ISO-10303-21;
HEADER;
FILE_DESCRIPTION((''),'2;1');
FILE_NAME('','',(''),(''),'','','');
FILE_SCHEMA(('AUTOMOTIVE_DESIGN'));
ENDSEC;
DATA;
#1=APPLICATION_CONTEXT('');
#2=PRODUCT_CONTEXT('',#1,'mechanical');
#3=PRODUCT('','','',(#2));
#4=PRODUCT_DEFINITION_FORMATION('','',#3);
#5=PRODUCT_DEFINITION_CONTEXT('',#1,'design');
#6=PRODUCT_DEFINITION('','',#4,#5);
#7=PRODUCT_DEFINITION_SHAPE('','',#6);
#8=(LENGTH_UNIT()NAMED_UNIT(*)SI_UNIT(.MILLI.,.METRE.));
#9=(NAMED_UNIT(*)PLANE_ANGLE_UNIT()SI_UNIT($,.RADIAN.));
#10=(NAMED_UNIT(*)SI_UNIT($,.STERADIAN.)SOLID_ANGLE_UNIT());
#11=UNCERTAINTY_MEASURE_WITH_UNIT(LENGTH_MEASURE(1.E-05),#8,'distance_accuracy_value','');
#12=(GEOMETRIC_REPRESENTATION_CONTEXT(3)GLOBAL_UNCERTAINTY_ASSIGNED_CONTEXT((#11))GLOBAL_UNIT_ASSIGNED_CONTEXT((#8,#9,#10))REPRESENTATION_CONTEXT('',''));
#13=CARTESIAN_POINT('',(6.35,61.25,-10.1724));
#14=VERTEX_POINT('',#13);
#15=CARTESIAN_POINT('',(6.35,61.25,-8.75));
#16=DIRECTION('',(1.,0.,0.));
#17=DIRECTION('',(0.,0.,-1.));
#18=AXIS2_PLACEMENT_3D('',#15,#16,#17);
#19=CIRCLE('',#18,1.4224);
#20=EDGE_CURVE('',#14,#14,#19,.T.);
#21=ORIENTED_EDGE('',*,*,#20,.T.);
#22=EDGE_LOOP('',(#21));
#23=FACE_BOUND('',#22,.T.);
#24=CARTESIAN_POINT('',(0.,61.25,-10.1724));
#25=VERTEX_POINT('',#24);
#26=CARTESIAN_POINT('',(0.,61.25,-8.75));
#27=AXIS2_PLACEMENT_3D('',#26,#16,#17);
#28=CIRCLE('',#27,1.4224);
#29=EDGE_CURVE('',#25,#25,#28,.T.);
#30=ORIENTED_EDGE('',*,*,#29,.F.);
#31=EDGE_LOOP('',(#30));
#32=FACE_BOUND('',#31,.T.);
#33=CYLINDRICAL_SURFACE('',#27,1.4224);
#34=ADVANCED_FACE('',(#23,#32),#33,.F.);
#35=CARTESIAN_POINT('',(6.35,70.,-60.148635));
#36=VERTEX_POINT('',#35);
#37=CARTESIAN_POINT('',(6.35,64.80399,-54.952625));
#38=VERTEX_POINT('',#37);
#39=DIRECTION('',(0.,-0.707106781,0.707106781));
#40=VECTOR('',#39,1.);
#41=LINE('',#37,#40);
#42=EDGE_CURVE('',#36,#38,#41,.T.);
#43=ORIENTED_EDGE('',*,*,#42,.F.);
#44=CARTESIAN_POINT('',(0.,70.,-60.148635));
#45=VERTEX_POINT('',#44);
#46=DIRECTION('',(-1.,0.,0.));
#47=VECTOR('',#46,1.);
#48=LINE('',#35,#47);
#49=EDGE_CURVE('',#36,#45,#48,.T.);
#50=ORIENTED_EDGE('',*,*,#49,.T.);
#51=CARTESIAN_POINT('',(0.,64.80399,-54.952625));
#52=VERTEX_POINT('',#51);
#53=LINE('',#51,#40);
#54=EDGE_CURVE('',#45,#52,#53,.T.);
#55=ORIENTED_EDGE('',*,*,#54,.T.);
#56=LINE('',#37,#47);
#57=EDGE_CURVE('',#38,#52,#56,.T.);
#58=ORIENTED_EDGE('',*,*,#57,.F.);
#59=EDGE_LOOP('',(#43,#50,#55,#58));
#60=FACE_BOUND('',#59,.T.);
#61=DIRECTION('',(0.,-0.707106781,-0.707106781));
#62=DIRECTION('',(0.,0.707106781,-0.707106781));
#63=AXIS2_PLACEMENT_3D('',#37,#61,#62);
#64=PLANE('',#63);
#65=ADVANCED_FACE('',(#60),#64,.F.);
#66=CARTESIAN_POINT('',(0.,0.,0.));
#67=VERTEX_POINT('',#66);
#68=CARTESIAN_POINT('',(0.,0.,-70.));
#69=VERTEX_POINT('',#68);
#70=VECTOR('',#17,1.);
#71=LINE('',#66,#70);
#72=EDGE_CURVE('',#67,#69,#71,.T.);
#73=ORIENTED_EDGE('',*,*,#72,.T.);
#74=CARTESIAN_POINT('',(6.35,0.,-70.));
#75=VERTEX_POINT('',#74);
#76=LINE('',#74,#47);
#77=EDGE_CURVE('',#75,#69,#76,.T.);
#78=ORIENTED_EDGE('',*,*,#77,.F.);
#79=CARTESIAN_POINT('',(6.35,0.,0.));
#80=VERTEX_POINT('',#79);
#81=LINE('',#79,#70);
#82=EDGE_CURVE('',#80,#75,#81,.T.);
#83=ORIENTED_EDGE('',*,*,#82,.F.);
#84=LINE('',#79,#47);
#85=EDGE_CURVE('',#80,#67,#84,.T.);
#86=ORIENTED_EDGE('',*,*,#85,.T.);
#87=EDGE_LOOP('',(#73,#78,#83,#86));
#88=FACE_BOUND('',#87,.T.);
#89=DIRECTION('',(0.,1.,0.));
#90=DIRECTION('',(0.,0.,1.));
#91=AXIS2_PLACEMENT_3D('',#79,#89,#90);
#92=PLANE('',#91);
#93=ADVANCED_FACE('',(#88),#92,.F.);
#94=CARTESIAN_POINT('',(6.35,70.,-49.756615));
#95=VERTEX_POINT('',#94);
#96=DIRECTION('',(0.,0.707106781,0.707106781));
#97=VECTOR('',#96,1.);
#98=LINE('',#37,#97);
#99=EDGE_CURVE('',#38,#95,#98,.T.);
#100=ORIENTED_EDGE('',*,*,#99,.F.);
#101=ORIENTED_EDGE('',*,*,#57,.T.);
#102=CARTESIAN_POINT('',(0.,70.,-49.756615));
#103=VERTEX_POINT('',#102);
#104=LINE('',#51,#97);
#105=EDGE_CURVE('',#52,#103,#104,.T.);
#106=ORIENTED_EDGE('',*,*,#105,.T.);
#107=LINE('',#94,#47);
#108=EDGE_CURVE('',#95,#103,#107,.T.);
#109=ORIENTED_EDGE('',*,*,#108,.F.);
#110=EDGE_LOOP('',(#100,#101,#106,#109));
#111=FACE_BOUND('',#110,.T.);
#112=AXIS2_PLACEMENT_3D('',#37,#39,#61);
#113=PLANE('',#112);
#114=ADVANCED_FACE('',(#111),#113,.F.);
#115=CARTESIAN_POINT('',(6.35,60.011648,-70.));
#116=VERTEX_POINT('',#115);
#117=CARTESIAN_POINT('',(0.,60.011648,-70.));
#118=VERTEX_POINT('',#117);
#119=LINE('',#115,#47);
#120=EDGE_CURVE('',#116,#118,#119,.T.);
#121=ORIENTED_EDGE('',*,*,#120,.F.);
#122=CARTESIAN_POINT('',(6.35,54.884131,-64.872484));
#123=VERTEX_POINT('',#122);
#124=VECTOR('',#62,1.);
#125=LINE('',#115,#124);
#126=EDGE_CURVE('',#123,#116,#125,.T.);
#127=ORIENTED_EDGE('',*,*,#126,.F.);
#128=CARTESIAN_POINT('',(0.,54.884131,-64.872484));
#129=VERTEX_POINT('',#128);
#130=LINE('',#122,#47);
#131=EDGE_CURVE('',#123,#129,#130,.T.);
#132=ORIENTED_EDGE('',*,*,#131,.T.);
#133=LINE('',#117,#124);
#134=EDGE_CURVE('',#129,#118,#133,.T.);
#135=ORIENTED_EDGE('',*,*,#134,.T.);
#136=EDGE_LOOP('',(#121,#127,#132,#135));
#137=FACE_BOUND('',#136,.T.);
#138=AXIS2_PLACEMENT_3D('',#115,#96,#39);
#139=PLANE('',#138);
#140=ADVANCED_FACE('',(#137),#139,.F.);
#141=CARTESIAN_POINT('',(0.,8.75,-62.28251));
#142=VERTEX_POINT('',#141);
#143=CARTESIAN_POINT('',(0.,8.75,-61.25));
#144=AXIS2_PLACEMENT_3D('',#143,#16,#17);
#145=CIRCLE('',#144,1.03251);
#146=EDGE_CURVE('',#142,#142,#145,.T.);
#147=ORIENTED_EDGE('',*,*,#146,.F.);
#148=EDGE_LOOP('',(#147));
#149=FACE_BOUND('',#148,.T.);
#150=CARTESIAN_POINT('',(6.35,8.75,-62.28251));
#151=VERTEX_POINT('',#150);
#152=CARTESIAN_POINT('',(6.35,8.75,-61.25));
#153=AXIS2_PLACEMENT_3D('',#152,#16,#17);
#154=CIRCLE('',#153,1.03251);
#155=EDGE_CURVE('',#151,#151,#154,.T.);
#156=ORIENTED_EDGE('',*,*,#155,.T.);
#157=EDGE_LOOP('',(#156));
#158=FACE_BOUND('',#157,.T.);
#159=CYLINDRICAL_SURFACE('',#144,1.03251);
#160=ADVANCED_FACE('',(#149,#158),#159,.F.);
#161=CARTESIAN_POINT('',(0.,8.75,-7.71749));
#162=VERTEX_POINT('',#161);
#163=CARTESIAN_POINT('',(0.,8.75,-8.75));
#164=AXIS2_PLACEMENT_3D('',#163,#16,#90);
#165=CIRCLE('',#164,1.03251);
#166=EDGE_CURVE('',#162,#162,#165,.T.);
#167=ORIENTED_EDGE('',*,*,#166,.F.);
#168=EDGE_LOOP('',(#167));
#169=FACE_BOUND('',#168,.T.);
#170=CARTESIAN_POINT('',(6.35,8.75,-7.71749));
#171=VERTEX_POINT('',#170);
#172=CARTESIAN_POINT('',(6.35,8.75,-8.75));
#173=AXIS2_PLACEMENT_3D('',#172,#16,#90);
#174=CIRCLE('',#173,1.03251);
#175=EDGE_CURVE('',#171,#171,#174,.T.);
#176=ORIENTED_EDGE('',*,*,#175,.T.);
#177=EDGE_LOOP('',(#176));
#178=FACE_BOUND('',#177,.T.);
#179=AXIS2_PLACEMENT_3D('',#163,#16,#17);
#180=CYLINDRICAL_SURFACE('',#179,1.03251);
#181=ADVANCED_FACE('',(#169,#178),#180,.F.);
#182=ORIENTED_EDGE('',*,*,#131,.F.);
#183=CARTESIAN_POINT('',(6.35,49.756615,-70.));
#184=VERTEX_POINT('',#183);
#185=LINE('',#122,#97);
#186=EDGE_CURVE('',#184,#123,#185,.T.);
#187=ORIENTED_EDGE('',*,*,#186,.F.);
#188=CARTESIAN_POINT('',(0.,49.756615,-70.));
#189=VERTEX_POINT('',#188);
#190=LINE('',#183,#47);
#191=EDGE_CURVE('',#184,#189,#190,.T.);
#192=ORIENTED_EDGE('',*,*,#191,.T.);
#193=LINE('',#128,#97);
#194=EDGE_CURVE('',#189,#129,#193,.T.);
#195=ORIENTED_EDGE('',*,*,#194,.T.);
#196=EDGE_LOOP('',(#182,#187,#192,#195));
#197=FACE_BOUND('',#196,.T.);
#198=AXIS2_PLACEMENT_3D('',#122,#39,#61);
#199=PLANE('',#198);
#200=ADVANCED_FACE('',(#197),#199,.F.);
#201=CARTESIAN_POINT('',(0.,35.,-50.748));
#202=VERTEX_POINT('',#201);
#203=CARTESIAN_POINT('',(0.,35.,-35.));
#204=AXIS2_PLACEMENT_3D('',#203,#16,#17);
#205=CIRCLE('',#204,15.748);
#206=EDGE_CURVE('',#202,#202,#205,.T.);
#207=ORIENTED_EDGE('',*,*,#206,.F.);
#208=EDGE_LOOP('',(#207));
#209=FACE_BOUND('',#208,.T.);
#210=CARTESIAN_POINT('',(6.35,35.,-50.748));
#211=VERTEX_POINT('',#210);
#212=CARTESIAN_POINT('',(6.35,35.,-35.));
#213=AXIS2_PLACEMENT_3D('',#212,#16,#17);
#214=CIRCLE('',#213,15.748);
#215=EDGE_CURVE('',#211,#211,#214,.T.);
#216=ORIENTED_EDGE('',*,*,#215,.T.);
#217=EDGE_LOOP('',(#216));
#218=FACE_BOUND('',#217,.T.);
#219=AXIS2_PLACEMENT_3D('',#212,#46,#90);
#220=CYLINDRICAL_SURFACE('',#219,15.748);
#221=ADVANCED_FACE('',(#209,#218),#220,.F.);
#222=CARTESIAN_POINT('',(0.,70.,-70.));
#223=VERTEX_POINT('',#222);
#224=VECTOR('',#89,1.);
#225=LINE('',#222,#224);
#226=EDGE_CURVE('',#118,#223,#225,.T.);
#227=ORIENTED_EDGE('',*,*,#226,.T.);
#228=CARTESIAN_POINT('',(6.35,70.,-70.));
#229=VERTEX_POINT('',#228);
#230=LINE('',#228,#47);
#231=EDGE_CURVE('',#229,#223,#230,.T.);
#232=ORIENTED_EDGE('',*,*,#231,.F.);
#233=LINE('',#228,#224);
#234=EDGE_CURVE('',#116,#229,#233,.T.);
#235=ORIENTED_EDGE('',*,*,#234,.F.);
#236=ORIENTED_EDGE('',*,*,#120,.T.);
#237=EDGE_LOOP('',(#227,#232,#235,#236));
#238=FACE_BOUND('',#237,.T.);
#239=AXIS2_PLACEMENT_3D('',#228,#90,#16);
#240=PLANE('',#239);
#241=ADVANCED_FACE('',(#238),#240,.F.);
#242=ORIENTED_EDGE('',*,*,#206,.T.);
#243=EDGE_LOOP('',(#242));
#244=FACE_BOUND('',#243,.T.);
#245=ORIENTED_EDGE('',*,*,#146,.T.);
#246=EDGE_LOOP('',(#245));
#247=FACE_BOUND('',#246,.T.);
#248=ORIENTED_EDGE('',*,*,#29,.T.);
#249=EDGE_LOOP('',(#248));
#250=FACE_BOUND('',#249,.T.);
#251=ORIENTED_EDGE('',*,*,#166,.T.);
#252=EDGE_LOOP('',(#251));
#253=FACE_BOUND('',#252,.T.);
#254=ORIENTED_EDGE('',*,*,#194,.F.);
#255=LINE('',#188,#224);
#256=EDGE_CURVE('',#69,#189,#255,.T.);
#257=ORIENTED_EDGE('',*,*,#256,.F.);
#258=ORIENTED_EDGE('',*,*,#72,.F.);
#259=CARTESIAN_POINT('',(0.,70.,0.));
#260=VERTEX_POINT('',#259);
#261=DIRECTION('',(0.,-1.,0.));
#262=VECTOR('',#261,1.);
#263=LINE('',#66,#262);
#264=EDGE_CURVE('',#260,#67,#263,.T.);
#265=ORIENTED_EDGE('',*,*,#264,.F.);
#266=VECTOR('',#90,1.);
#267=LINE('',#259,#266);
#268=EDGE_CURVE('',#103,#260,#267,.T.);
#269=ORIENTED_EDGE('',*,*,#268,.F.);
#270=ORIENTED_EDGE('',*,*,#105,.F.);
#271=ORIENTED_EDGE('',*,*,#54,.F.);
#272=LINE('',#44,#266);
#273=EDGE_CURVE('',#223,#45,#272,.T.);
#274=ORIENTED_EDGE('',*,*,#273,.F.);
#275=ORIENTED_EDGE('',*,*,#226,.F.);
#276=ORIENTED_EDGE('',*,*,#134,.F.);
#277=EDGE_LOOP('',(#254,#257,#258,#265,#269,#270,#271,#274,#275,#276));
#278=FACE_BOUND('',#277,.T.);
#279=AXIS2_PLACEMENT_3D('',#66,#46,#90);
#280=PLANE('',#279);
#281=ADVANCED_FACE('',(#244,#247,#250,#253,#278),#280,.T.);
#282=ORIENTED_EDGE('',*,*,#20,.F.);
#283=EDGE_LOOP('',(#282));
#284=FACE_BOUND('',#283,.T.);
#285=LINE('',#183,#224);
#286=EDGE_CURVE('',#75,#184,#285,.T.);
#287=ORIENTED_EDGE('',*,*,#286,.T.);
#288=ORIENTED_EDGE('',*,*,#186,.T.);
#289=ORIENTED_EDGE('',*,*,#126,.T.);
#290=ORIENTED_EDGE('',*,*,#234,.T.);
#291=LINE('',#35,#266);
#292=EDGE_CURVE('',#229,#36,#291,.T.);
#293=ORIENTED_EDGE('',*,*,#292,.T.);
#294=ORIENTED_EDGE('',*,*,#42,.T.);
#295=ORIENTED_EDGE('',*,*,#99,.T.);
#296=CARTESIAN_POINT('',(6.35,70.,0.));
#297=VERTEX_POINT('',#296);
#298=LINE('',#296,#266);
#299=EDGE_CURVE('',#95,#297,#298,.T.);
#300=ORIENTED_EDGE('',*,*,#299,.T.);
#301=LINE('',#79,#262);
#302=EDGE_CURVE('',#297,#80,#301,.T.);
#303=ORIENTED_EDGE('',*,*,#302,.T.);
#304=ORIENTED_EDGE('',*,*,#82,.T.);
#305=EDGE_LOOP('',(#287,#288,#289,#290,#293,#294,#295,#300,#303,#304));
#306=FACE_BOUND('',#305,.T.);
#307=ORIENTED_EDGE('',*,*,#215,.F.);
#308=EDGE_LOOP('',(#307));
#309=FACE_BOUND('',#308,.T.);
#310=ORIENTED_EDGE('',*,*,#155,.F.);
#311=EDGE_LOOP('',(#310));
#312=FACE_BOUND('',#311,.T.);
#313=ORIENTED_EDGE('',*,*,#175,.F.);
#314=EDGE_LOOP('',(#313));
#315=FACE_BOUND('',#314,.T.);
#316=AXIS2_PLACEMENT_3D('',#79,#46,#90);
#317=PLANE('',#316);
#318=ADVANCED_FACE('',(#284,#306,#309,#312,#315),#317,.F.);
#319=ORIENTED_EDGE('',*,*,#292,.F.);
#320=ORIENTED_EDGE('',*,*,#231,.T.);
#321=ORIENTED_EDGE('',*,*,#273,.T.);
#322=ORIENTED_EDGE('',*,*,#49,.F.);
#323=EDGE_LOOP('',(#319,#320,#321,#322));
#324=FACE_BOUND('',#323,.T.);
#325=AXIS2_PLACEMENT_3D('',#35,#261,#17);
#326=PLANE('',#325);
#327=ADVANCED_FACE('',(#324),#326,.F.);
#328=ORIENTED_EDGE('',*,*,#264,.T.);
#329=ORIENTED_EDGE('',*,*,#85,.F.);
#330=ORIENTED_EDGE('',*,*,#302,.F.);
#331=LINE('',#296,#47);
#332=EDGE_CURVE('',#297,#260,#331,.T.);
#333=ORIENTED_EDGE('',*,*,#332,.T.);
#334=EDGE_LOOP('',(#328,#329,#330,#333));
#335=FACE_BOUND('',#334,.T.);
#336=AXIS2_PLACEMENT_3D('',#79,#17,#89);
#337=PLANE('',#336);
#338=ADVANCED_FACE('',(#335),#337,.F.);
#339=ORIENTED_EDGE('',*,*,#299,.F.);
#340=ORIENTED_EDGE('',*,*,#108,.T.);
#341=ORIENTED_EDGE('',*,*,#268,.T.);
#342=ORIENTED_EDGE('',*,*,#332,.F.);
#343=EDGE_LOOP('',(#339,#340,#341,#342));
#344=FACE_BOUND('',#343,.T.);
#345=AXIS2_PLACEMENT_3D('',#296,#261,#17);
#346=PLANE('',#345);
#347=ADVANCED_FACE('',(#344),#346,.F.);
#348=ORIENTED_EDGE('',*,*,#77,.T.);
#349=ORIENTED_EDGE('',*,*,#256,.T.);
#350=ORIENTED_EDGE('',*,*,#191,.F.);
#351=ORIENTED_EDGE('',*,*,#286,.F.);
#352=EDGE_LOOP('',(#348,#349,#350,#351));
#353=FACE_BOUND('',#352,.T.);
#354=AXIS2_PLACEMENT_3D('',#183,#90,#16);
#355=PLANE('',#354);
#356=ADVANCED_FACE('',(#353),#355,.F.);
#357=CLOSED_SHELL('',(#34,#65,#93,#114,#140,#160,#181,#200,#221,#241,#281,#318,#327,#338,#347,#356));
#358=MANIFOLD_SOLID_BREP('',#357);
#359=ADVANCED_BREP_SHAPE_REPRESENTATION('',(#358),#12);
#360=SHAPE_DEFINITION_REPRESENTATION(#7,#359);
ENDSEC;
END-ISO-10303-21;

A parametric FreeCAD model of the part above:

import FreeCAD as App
import Part
import Sketcher

V = App.Vector
Q = App.Units.Quantity


def add_polygon(sketch, points):
    """Adds a closed chain of lines whose ends are joined by coincident constraints."""
    first, n = sketch.GeometryCount, len(points)
    for a, b in zip(points, points[1:] + points[:1]):
        sketch.addGeometry(Part.LineSegment(App.Vector(*a, 0), App.Vector(*b, 0)), False)
    for i in range(n):
        sketch.addConstraint(Sketcher.Constraint("Coincident", first + i, 2, first + (i + 1) % n, 1))

doc = App.newDocument("Part")
body = doc.addObject("PartDesign::Body", "Body")

# Sketch on YZ plane
sketch1 = doc.addObject("Sketcher::SketchObject", "Sketch")
body.addObject(sketch1)
sketch1.AttachmentSupport = (doc.YZ_Plane, [""])
sketch1.MapMode = "FlatFace"
add_polygon(sketch1, [(0, 0), (0, -70), (49.756615, -70), (54.884131, -64.872484), (60.011648, -70), (70, -70), (70, -60.148635), (64.80399, -54.952625), (70, -49.756615), (70, 0)])  # lines 0-9
sketch1.addGeometry(Part.Circle(V(35, -35, 0), V(0, 0, 1), 15.748), False)  # 10
sketch1.addConstraint([
    Sketcher.Constraint("Vertical", 0),
    Sketcher.Constraint("Horizontal", 1),
    Sketcher.Constraint("Horizontal", 4),
    Sketcher.Constraint("Vertical", 5),
    Sketcher.Constraint("Vertical", 8),
    Sketcher.Constraint("Horizontal", 9),
    Sketcher.Constraint("Coincident", 9, 2, -1, 1),
    Sketcher.Constraint("Perpendicular", 2, 3),
    Sketcher.Constraint("Parallel", 3, 6),
    Sketcher.Constraint("Perpendicular", 6, 7),
    Sketcher.Constraint("Horizontal", 1, 2, 3, 2),
    Sketcher.Constraint("Vertical", 5, 2, 7, 2),
    Sketcher.Constraint("Equal", 9, 0),
    Sketcher.Constraint("Equal", 1, 8),
    Sketcher.Constraint("Equal", 2, 3),
    Sketcher.Constraint("Diameter", 10, Q("1.24 in")),
    Sketcher.Constraint("DistanceX", 9, 2, 9, 1, 70.0),
    Sketcher.Constraint("DistanceX", -1, 1, 10, 3, 35.0),
    Sketcher.Constraint("DistanceY", 10, 3, -1, 1, 35.0),
    Sketcher.Constraint("DistanceX", 1, 1, 1, 2, 49.756615),
    Sketcher.Constraint("DistanceX", 4, 1, 4, 2, 9.988352),
    Sketcher.Constraint("DistanceY", 5, 1, 5, 2, 9.851365),
])
pad1 = doc.addObject("PartDesign::Pad", "Pad")
body.addObject(pad1)
pad1.Profile = sketch1
pad1.Length = Q("0.25 in")

# Sketch on YZ plane
sketch2 = doc.addObject("Sketcher::SketchObject", "Sketch001")
body.addObject(sketch2)
sketch2.AttachmentSupport = (doc.YZ_Plane, [""])
sketch2.MapMode = "FlatFace"
sketch2.AttachmentOffset = App.Placement(V(0, 0, 0.25 * 25.4), App.Rotation())
sketch2.addGeometry([
    Part.Circle(V(61.25, -8.75, 0), V(0, 0, 1), 1.4224),
    Part.Circle(V(8.75, -8.75, 0), V(0, 0, 1), 1.03251),
    Part.Circle(V(8.75, -61.25, 0), V(0, 0, 1), 1.03251),
], False)
sketch2.addConstraint([
    Sketcher.Constraint("Equal", 1, 2),
    Sketcher.Constraint("Horizontal", 0, 3, 1, 3),
    Sketcher.Constraint("Vertical", 1, 3, 2, 3),
    Sketcher.Constraint("Diameter", 0, Q("0.112 in")),
    Sketcher.Constraint("Diameter", 1, Q("0.0813 in")),
    Sketcher.Constraint("DistanceX", -1, 1, 0, 3, 61.25),
    Sketcher.Constraint("DistanceY", 0, 3, -1, 1, 8.75),
    Sketcher.Constraint("DistanceX", -1, 1, 1, 3, 8.75),
    Sketcher.Constraint("DistanceY", 2, 3, -1, 1, 61.25),
])
pocket1 = doc.addObject("PartDesign::Pocket", "Pocket")
body.addObject(pocket1)
pocket1.Profile = sketch2
pocket1.Length = Q("0.25 in")

doc.recompute()
